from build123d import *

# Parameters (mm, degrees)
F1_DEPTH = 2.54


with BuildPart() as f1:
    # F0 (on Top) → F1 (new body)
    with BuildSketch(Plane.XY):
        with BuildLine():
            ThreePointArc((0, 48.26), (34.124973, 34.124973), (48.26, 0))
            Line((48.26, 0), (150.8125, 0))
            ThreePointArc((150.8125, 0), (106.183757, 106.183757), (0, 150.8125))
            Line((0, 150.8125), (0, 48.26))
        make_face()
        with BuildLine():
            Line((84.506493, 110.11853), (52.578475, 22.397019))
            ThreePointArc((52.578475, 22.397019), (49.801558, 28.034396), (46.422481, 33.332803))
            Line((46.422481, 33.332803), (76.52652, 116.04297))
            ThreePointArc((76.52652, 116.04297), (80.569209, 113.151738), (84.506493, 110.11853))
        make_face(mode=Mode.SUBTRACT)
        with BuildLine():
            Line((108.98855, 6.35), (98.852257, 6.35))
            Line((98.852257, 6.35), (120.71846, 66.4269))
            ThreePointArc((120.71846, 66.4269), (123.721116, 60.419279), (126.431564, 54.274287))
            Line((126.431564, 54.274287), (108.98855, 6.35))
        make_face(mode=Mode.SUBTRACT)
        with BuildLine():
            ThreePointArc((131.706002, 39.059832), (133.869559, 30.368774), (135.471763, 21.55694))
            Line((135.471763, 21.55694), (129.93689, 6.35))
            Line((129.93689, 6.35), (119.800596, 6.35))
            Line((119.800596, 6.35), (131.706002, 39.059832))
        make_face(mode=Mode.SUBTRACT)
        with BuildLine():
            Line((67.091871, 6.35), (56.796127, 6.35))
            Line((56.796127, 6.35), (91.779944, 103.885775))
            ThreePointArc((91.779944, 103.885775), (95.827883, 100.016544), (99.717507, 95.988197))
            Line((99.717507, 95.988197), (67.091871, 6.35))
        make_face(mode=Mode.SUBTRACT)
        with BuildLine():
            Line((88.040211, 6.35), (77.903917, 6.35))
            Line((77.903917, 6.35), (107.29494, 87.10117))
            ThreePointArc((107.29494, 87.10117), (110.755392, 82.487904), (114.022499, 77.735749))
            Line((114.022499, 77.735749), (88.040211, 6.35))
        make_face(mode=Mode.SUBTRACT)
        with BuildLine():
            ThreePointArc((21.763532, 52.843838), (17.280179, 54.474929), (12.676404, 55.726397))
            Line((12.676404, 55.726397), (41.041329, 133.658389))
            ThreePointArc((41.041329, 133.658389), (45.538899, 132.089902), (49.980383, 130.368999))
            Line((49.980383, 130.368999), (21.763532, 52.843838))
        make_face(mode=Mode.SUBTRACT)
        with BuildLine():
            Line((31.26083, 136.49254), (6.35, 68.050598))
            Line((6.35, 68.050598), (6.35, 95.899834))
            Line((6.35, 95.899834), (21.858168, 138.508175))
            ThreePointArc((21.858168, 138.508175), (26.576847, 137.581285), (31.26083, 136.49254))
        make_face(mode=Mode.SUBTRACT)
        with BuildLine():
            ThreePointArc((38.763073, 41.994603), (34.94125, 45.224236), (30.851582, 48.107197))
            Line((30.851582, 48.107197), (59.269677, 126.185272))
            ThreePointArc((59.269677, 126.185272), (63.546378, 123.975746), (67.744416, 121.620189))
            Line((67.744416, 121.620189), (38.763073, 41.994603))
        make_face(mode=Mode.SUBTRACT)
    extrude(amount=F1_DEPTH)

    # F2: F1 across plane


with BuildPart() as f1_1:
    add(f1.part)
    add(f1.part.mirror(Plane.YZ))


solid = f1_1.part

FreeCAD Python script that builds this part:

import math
import FreeCAD as App
import Part
import Sketcher
from FreeCAD import Vector
Q = App.Units.Quantity

doc = App.newDocument("Part")
body = doc.addObject("PartDesign::Body", "Body")

# Sketch on XY plane
sketch1 = body.newObject("Sketcher::SketchObject", "Sketch")
sketch1.AttachmentSupport = (doc.getObject("XY_Plane"), [""])
sketch1.MapMode = "FlatFace"
sketch1.addGeometry(Part.ArcOfCircle(Part.Circle(Vector(-0.000001, -0.000001, 0), Vector(0, 0, 1), 48.260001), math.radians(0.000001), math.radians(89.999999)), False)
sketch1.addGeometry(Part.LineSegment(Vector(48.26, 0, 0), Vector(150.8125, 0, 0)), False)
sketch1.addGeometry(Part.ArcOfCircle(Part.Circle(Vector(-1.579316, -1.579316, 0), Vector(0, 0, 1), 152.4), math.radians(0.593765), math.radians(89.406235)), False)
sketch1.addGeometry(Part.LineSegment(Vector(0, 150.8125, 0), Vector(0, 48.26, 0)), False)
sketch1.addGeometry(Part.ArcOfCircle(Part.Circle(Vector(-2.705114, 0.984707, 0), Vector(0, 0, 1), 139.699878), math.radians(51.370761), math.radians(55.447853)), False)
sketch1.addGeometry(Part.LineSegment(Vector(84.506493, 110.11853, 0), Vector(52.578475, 22.397019, 0)), False)
sketch1.addGeometry(Part.ArcOfCircle(Part.Circle(Vector(0.000054, 0.00003, 0), Vector(0, 0, 1), 57.149939), math.radians(23.072696), math.radians(35.679544)), False)
sketch1.addGeometry(Part.LineSegment(Vector(46.422481, 33.332803, 0), Vector(76.52652, 116.04297, 0)), False)
sketch1.addGeometry(Part.LineSegment(Vector(119.800596, 6.35, 0), Vector(131.706002, 39.059832, 0)), False)
sketch1.addGeometry(Part.ArcOfCircle(Part.Circle(Vector(-2.705062, 0.984636, 0), Vector(0, 0, 1), 139.699874), math.radians(8.468214), math.radians(15.816061)), False)
sketch1.addGeometry(Part.LineSegment(Vector(135.471763, 21.55694, 0), Vector(129.93689, 6.35, 0)), False)
sketch1.addGeometry(Part.LineSegment(Vector(129.93689, 6.35, 0), Vector(119.800596, 6.35, 0)), False)
sketch1.addGeometry(Part.LineSegment(Vector(126.431564, 54.274287, 0), Vector(108.98855, 6.35, 0)), False)
sketch1.addGeometry(Part.LineSegment(Vector(108.98855, 6.35, 0), Vector(98.852257, 6.35, 0)), False)
sketch1.addGeometry(Part.LineSegment(Vector(98.852257, 6.35, 0), Vector(120.71846, 66.4269, 0)), False)
sketch1.addGeometry(Part.ArcOfCircle(Part.Circle(Vector(-2.7054, 0.984503, 0), Vector(0, 0, 1), 139.700238), math.radians(22.424029), math.radians(27.933646)), False)
sketch1.addGeometry(Part.LineSegment(Vector(99.717507, 95.988197, 0), Vector(67.091871, 6.35, 0)), False)
sketch1.addGeometry(Part.LineSegment(Vector(67.091871, 6.35, 0), Vector(56.796127, 6.35, 0)), False)
sketch1.addGeometry(Part.LineSegment(Vector(56.796127, 6.35, 0), Vector(91.779944, 103.885775, 0)), False)
sketch1.addGeometry(Part.ArcOfCircle(Part.Circle(Vector(-2.70496, 0.984835, 0), Vector(0, 0, 1), 139.69968), math.radians(42.847883), math.radians(47.441469)), False)
sketch1.addGeometry(Part.LineSegment(Vector(114.022499, 77.735749, 0), Vector(88.040211, 6.35, 0)), False)
sketch1.addGeometry(Part.LineSegment(Vector(88.040211, 6.35, 0), Vector(77.903917, 6.35, 0)), False)
sketch1.addGeometry(Part.LineSegment(Vector(77.903917, 6.35, 0), Vector(107.29494, 87.10117, 0)), False)
sketch1.addGeometry(Part.ArcOfCircle(Part.Circle(Vector(-2.705222, 0.984576, 0), Vector(0, 0, 1), 139.700049), math.radians(33.325844), math.radians(38.056574)), False)
sketch1.addGeometry(Part.ArcOfCircle(Part.Circle(Vector(-2.705482, 0.98322, 0), Vector(0, 0, 1), 139.701418), math.radians(75.928352), math.radians(79.873059)), False)
sketch1.addGeometry(Part.LineSegment(Vector(31.26083, 136.49254, 0), Vector(6.35, 68.050598, 0)), False)
sketch1.addGeometry(Part.LineSegment(Vector(6.35, 68.050598, 0), Vector(6.35, 95.899834, 0)), False)
sketch1.addGeometry(Part.LineSegment(Vector(6.35, 95.899834, 0), Vector(21.858168, 138.508175, 0)), False)
sketch1.addGeometry(Part.LineSegment(Vector(49.980383, 130.368999, 0), Vector(21.763532, 52.843838, 0)), False)
sketch1.addGeometry(Part.ArcOfCircle(Part.Circle(Vector(-0.000049, -0.000154, 0), Vector(0, 0, 1), 57.150162), math.radians(67.615888), math.radians(77.18466)), False)
sketch1.addGeometry(Part.LineSegment(Vector(12.676404, 55.726397, 0), Vector(41.041329, 133.658389, 0)), False)
sketch1.addGeometry(Part.ArcOfCircle(Part.Circle(Vector(-2.705023, 0.98504, 0), Vector(0, 0, 1), 139.699538), math.radians(67.843749), math.radians(71.751074)), False)
sketch1.addGeometry(Part.LineSegment(Vector(67.744416, 121.620189, 0), Vector(38.763073, 41.994603, 0)), False)
sketch1.addGeometry(Part.ArcOfCircle(Part.Circle(Vector(-0.000055, -0.00007, 0), Vector(0, 0, 1), 57.150089), math.radians(47.291484), math.radians(57.327571)), False)
sketch1.addGeometry(Part.LineSegment(Vector(30.851582, 48.107197, 0), Vector(59.269677, 126.185272, 0)), False)
sketch1.addGeometry(Part.ArcOfCircle(Part.Circle(Vector(-2.7055, 0.984034, 0), Vector(0, 0, 1), 139.700654), math.radians(59.715638), math.radians(63.664383)), False)
sketch1.addConstraint(Sketcher.Constraint("Coincident", 0, 1, 1, 1))
sketch1.addConstraint(Sketcher.Constraint("Coincident", 1, 2, 2, 1))
sketch1.addConstraint(Sketcher.Constraint("Coincident", 2, 2, 3, 1))
sketch1.addConstraint(Sketcher.Constraint("Coincident", 3, 2, 0, 2))
sketch1.addConstraint(Sketcher.Constraint("Coincident", 4, 1, 5, 1))
sketch1.addConstraint(Sketcher.Constraint("Coincident", 5, 2, 6, 1))
sketch1.addConstraint(Sketcher.Constraint("Coincident", 6, 2, 7, 1))
sketch1.addConstraint(Sketcher.Constraint("Coincident", 7, 2, 4, 2))
sketch1.addConstraint(Sketcher.Constraint("Coincident", 8, 2, 9, 2))
sketch1.addConstraint(Sketcher.Constraint("Coincident", 9, 1, 10, 1))
sketch1.addConstraint(Sketcher.Constraint("Coincident", 10, 2, 11, 1))
sketch1.addConstraint(Sketcher.Constraint("Coincident", 11, 2, 8, 1))
sketch1.addConstraint(Sketcher.Constraint("Coincident", 12, 2, 13, 1))
sketch1.addConstraint(Sketcher.Constraint("Coincident", 13, 2, 14, 1))
sketch1.addConstraint(Sketcher.Constraint("Coincident", 14, 2, 15, 2))
sketch1.addConstraint(Sketcher.Constraint("Coincident", 15, 1, 12, 1))
sketch1.addConstraint(Sketcher.Constraint("Coincident", 16, 2, 17, 1))
sketch1.addConstraint(Sketcher.Constraint("Coincident", 17, 2, 18, 1))
sketch1.addConstraint(Sketcher.Constraint("Coincident", 18, 2, 19, 2))
sketch1.addConstraint(Sketcher.Constraint("Coincident", 19, 1, 16, 1))
sketch1.addConstraint(Sketcher.Constraint("Coincident", 20, 2, 21, 1))
sketch1.addConstraint(Sketcher.Constraint("Coincident", 21, 2, 22, 1))
sketch1.addConstraint(Sketcher.Constraint("Coincident", 22, 2, 23, 2))
sketch1.addConstraint(Sketcher.Constraint("Coincident", 23, 1, 20, 1))
sketch1.addConstraint(Sketcher.Constraint("Coincident", 24, 1, 25, 1))
sketch1.addConstraint(Sketcher.Constraint("Coincident", 25, 2, 26, 1))
sketch1.addConstraint(Sketcher.Constraint("Coincident", 26, 2, 27, 1))
sketch1.addConstraint(Sketcher.Constraint("Coincident", 27, 2, 24, 2))
sketch1.addConstraint(Sketcher.Constraint("Coincident", 28, 2, 29, 1))
sketch1.addConstraint(Sketcher.Constraint("Coincident", 29, 2, 30, 1))
sketch1.addConstraint(Sketcher.Constraint("Coincident", 30, 2, 31, 2))
sketch1.addConstraint(Sketcher.Constraint("Coincident", 31, 1, 28, 1))
sketch1.addConstraint(Sketcher.Constraint("Coincident", 32, 2, 33, 1))
sketch1.addConstraint(Sketcher.Constraint("Coincident", 33, 2, 34, 1))
sketch1.addConstraint(Sketcher.Constraint("Coincident", 34, 2, 35, 2))
sketch1.addConstraint(Sketcher.Constraint("Coincident", 35, 1, 32, 1))
sketch1.addConstraint(Sketcher.Constraint("Horizontal", 1))
sketch1.addConstraint(Sketcher.Constraint("Vertical", 3))
sketch1.addConstraint(Sketcher.Constraint("Horizontal", 11))
sketch1.addConstraint(Sketcher.Constraint("Horizontal", 13))
sketch1.addConstraint(Sketcher.Constraint("Horizontal", 17))
sketch1.addConstraint(Sketcher.Constraint("Horizontal", 21))
sketch1.addConstraint(Sketcher.Constraint("Vertical", 26))
sketch1.addConstraint(Sketcher.Constraint("Coincident", 0, 3, -1, 1))
sketch1.addConstraint(Sketcher.Constraint("PointOnObject", 0, 1, -1))
sketch1.addConstraint(Sketcher.Constraint("PointOnObject", 2, 2, -2))
sketch1.addConstraint(Sketcher.Constraint("Radius", 2, Q("6 in")))
sketch1.addConstraint(Sketcher.Constraint("Radius", 0, Q("1.9 in")))
sketch1.addConstraint(Sketcher.Constraint("DistanceY", -1, 1, 10, 2, Q("0.25 in")))
sketch1.addConstraint(Sketcher.Constraint("DistanceY", -1, 1, 12, 2, Q("0.25 in")))
sketch1.addConstraint(Sketcher.Constraint("DistanceY", -1, 1, 16, 2, Q("0.25 in")))
sketch1.addConstraint(Sketcher.Constraint("DistanceY", -1, 1, 20, 2, Q("0.25 in")))
sketch1.addConstraint(Sketcher.Constraint("DistanceX", -1, 1, 25, 2, Q("0.25 in")))
sketch1.addConstraint(Sketcher.Constraint("DistanceX", 1, 1, 1, 2, Q("4.0375 in")))
sketch1.addConstraint(Sketcher.Constraint("DistanceY", 3, 2, 3, 1, Q("4.0375 in")))
sketch1.addConstraint(Sketcher.Constraint("Radius", 6, 57.149939))
sketch1.addConstraint(Sketcher.Constraint("Radius", 15, 139.700238))
sketch1.addConstraint(Sketcher.Constraint("Radius", 19, 139.69968))
sketch1.addConstraint(Sketcher.Constraint("Radius", 23, 139.700049))
sketch1.addConstraint(Sketcher.Constraint("Radius", 29, 57.150162))
sketch1.addConstraint(Sketcher.Constraint("Radius", 31, 139.699538))
sketch1.addConstraint(Sketcher.Constraint("Radius", 33, 57.150089))
sketch1.addConstraint(Sketcher.Constraint("Radius", 4, 139.699878))
sketch1.addConstraint(Sketcher.Constraint("Radius", 9, 139.699874))
sketch1.addConstraint(Sketcher.Constraint("Radius", 24, 139.701418))
sketch1.addConstraint(Sketcher.Constraint("Radius", 35, 139.700654))
sketch1.addConstraint(Sketcher.Constraint("Distance", 14, 63.932501))
sketch1.addConstraint(Sketcher.Constraint("Distance", 22, 85.9336))
sketch1.addConstraint(Sketcher.Constraint("DistanceX", 15, 3, -1, 1, 2.7054))
sketch1.addConstraint(Sketcher.Constraint("DistanceX", 35, 3, -1, 1, 2.7055))
sketch1.addConstraint(Sketcher.Constraint("DistanceY", -1, 1, 14, 2, 66.4269))
sketch1.addConstraint(Sketcher.Constraint("DistanceX", -1, 1, 23, 1, 114.022499))
sketch1.addConstraint(Sketcher.Constraint("DistanceY", -1, 1, 31, 1, 130.368999))
sketch1.addConstraint(Sketcher.Constraint("DistanceY", 9, 3, 19, 3, 0.000198))
sketch1.addConstraint(Sketcher.Constraint("DistanceX", 23, 3, 31, 3, 0.000199))
sketch1.addConstraint(Sketcher.Constraint("DistanceY", 33, 3, 6, 3, 0.000101))
sketch1.addConstraint(Sketcher.Constraint("DistanceY", 6, 3, 4, 1, 110.1185))
sketch1.addConstraint(Sketcher.Constraint("DistanceX", 15, 1, 9, 1, 9.040199))
sketch1.addConstraint(Sketcher.Constraint("DistanceY", 29, 2, 25, 2, 12.324201))
sketch1.addConstraint(Sketcher.Constraint("DistanceX", 24, 1, 30, 2, 9.780499))
sketch1.addConstraint(Sketcher.Constraint("DistanceY", 6, 2, 32, 2, 8.6618))
sketch1.addConstraint(Sketcher.Constraint("DistanceX", 32, 2, 5, 2, 13.815402))
sketch1.addConstraint(Sketcher.Constraint("DistanceY", 33, 2, 29, 2, 7.6192))
sketch1.addConstraint(Sketcher.Constraint("DistanceX", 33, 2, 6, 2, 15.570899))
sketch1.addConstraint(Sketcher.Constraint("DistanceY", 35, 1, 30, 2, 12.0382))
sketch1.addConstraint(Sketcher.Constraint("Distance", 5, 93.351282))
sketch1.addConstraint(Sketcher.Constraint("Distance", 7, 88.018321))
sketch1.addConstraint(Sketcher.Constraint("Distance", 12, 50.999961))
sketch1.addConstraint(Sketcher.Constraint("Distance", 27, 45.342849))
sketch1.addConstraint(Sketcher.Constraint("Distance", 32, 84.735779))
sketch1.addConstraint(Sketcher.Constraint("Distance", 34, 83.088952))
sketch1.addConstraint(Sketcher.Constraint("DistanceX", 11, 2, 11, 1, 10.136294))
sketch1.addConstraint(Sketcher.Constraint("DistanceX", 13, 2, 13, 1, 10.136293))
sketch1.addConstraint(Sketcher.Constraint("DistanceX", 17, 2, 17, 1, 10.295744))
sketch1.addConstraint(Sketcher.Constraint("DistanceX", 21, 2, 21, 1, 10.136294))
sketch1.addConstraint(Sketcher.Constraint("DistanceY", 26, 1, 26, 2, 27.849236))
sketch1.addConstraint(Sketcher.Constraint("DistanceX", 19, 3, -1, 1, 2.70496))
sketch1.addConstraint(Sketcher.Constraint("DistanceX", 24, 3, -1, 1, 2.705482))
sketch1.addConstraint(Sketcher.Constraint("DistanceY", -1, 1, 24, 3, 0.98322))
sketch1.addConstraint(Sketcher.Constraint("DistanceY", -1, 1, 31, 3, 0.98504))
sketch1.addConstraint(Sketcher.Constraint("DistanceY", -1, 1, 4, 1, 110.11853))
sketch1.addConstraint(Sketcher.Constraint("DistanceY", -1, 1, 5, 2, 22.397019))
sketch1.addConstraint(Sketcher.Constraint("DistanceX", -1, 1, 6, 2, 46.422481))
sketch1.addConstraint(Sketcher.Constraint("DistanceX", -1, 1, 7, 2, 76.52652))
sketch1.addConstraint(Sketcher.Constraint("DistanceY", -1, 1, 7, 2, 116.04297))
sketch1.addConstraint(Sketcher.Constraint("DistanceY", -1, 1, 9, 1, 21.55694))
sketch1.addConstraint(Sketcher.Constraint("DistanceX", -1, 1, 10, 2, 129.93689))
sketch1.addConstraint(Sketcher.Constraint("DistanceX", -1, 1, 12, 2, 108.98855))
sketch1.addConstraint(Sketcher.Constraint("DistanceX", -1, 1, 16, 2, 67.091871))
sketch1.addConstraint(Sketcher.Constraint("DistanceX", -1, 1, 20, 2, 88.040211))
sketch1.addConstraint(Sketcher.Constraint("DistanceX", -1, 1, 22, 2, 107.29494))
sketch1.addConstraint(Sketcher.Constraint("DistanceX", -1, 1, 24, 1, 31.26083))
sketch1.addConstraint(Sketcher.Constraint("DistanceY", -1, 1, 30, 2, 133.658389))
sketch1.addConstraint(Sketcher.Constraint("DistanceX", 9, 3, 0, 3, 2.705062))
sketch1.addConstraint(Sketcher.Constraint("DistanceY", 2, 3, 29, 3, 1.579162))
sketch1.addConstraint(Sketcher.Constraint("DistanceX", 19, 3, 29, 3, 2.704911))
sketch1.addConstraint(Sketcher.Constraint("DistanceX", 4, 1, 8, 2, 47.199509))
sketch1.addConstraint(Sketcher.Constraint("DistanceX", 4, 1, 18, 2, 7.273451))
sketch1.addConstraint(Sketcher.Constraint("DistanceY", 19, 1, 18, 2, 7.897578))
sketch1.addConstraint(Sketcher.Constraint("DistanceY", 28, 2, 25, 2, 15.20676))
pad1 = body.newObject("PartDesign::Pad", "Pad")
pad1.Profile = sketch1
pad1.Length = Q("0.1 in")
body2 = doc.addObject("PartDesign::Body", "Body001")
doc.recompute()

body2.BaseFeature = body
doc.recompute()

mirroring = doc.addObject("Part::Mirroring", "Mirroring")
mirroring.Source = body
mirroring.Base = Vector(0, 0, 0)
mirroring.Normal = Vector(1, 0, 0)
body3 = doc.addObject("PartDesign::Body", "Body002")
body3.BaseFeature = mirroring
boolean = body2.newObject("PartDesign::Boolean", "Boolean")
boolean.Type = "Fuse"
boolean.addObjects([body3])
doc.recompute()
mirroring.Visibility = False

doc.recompute()
